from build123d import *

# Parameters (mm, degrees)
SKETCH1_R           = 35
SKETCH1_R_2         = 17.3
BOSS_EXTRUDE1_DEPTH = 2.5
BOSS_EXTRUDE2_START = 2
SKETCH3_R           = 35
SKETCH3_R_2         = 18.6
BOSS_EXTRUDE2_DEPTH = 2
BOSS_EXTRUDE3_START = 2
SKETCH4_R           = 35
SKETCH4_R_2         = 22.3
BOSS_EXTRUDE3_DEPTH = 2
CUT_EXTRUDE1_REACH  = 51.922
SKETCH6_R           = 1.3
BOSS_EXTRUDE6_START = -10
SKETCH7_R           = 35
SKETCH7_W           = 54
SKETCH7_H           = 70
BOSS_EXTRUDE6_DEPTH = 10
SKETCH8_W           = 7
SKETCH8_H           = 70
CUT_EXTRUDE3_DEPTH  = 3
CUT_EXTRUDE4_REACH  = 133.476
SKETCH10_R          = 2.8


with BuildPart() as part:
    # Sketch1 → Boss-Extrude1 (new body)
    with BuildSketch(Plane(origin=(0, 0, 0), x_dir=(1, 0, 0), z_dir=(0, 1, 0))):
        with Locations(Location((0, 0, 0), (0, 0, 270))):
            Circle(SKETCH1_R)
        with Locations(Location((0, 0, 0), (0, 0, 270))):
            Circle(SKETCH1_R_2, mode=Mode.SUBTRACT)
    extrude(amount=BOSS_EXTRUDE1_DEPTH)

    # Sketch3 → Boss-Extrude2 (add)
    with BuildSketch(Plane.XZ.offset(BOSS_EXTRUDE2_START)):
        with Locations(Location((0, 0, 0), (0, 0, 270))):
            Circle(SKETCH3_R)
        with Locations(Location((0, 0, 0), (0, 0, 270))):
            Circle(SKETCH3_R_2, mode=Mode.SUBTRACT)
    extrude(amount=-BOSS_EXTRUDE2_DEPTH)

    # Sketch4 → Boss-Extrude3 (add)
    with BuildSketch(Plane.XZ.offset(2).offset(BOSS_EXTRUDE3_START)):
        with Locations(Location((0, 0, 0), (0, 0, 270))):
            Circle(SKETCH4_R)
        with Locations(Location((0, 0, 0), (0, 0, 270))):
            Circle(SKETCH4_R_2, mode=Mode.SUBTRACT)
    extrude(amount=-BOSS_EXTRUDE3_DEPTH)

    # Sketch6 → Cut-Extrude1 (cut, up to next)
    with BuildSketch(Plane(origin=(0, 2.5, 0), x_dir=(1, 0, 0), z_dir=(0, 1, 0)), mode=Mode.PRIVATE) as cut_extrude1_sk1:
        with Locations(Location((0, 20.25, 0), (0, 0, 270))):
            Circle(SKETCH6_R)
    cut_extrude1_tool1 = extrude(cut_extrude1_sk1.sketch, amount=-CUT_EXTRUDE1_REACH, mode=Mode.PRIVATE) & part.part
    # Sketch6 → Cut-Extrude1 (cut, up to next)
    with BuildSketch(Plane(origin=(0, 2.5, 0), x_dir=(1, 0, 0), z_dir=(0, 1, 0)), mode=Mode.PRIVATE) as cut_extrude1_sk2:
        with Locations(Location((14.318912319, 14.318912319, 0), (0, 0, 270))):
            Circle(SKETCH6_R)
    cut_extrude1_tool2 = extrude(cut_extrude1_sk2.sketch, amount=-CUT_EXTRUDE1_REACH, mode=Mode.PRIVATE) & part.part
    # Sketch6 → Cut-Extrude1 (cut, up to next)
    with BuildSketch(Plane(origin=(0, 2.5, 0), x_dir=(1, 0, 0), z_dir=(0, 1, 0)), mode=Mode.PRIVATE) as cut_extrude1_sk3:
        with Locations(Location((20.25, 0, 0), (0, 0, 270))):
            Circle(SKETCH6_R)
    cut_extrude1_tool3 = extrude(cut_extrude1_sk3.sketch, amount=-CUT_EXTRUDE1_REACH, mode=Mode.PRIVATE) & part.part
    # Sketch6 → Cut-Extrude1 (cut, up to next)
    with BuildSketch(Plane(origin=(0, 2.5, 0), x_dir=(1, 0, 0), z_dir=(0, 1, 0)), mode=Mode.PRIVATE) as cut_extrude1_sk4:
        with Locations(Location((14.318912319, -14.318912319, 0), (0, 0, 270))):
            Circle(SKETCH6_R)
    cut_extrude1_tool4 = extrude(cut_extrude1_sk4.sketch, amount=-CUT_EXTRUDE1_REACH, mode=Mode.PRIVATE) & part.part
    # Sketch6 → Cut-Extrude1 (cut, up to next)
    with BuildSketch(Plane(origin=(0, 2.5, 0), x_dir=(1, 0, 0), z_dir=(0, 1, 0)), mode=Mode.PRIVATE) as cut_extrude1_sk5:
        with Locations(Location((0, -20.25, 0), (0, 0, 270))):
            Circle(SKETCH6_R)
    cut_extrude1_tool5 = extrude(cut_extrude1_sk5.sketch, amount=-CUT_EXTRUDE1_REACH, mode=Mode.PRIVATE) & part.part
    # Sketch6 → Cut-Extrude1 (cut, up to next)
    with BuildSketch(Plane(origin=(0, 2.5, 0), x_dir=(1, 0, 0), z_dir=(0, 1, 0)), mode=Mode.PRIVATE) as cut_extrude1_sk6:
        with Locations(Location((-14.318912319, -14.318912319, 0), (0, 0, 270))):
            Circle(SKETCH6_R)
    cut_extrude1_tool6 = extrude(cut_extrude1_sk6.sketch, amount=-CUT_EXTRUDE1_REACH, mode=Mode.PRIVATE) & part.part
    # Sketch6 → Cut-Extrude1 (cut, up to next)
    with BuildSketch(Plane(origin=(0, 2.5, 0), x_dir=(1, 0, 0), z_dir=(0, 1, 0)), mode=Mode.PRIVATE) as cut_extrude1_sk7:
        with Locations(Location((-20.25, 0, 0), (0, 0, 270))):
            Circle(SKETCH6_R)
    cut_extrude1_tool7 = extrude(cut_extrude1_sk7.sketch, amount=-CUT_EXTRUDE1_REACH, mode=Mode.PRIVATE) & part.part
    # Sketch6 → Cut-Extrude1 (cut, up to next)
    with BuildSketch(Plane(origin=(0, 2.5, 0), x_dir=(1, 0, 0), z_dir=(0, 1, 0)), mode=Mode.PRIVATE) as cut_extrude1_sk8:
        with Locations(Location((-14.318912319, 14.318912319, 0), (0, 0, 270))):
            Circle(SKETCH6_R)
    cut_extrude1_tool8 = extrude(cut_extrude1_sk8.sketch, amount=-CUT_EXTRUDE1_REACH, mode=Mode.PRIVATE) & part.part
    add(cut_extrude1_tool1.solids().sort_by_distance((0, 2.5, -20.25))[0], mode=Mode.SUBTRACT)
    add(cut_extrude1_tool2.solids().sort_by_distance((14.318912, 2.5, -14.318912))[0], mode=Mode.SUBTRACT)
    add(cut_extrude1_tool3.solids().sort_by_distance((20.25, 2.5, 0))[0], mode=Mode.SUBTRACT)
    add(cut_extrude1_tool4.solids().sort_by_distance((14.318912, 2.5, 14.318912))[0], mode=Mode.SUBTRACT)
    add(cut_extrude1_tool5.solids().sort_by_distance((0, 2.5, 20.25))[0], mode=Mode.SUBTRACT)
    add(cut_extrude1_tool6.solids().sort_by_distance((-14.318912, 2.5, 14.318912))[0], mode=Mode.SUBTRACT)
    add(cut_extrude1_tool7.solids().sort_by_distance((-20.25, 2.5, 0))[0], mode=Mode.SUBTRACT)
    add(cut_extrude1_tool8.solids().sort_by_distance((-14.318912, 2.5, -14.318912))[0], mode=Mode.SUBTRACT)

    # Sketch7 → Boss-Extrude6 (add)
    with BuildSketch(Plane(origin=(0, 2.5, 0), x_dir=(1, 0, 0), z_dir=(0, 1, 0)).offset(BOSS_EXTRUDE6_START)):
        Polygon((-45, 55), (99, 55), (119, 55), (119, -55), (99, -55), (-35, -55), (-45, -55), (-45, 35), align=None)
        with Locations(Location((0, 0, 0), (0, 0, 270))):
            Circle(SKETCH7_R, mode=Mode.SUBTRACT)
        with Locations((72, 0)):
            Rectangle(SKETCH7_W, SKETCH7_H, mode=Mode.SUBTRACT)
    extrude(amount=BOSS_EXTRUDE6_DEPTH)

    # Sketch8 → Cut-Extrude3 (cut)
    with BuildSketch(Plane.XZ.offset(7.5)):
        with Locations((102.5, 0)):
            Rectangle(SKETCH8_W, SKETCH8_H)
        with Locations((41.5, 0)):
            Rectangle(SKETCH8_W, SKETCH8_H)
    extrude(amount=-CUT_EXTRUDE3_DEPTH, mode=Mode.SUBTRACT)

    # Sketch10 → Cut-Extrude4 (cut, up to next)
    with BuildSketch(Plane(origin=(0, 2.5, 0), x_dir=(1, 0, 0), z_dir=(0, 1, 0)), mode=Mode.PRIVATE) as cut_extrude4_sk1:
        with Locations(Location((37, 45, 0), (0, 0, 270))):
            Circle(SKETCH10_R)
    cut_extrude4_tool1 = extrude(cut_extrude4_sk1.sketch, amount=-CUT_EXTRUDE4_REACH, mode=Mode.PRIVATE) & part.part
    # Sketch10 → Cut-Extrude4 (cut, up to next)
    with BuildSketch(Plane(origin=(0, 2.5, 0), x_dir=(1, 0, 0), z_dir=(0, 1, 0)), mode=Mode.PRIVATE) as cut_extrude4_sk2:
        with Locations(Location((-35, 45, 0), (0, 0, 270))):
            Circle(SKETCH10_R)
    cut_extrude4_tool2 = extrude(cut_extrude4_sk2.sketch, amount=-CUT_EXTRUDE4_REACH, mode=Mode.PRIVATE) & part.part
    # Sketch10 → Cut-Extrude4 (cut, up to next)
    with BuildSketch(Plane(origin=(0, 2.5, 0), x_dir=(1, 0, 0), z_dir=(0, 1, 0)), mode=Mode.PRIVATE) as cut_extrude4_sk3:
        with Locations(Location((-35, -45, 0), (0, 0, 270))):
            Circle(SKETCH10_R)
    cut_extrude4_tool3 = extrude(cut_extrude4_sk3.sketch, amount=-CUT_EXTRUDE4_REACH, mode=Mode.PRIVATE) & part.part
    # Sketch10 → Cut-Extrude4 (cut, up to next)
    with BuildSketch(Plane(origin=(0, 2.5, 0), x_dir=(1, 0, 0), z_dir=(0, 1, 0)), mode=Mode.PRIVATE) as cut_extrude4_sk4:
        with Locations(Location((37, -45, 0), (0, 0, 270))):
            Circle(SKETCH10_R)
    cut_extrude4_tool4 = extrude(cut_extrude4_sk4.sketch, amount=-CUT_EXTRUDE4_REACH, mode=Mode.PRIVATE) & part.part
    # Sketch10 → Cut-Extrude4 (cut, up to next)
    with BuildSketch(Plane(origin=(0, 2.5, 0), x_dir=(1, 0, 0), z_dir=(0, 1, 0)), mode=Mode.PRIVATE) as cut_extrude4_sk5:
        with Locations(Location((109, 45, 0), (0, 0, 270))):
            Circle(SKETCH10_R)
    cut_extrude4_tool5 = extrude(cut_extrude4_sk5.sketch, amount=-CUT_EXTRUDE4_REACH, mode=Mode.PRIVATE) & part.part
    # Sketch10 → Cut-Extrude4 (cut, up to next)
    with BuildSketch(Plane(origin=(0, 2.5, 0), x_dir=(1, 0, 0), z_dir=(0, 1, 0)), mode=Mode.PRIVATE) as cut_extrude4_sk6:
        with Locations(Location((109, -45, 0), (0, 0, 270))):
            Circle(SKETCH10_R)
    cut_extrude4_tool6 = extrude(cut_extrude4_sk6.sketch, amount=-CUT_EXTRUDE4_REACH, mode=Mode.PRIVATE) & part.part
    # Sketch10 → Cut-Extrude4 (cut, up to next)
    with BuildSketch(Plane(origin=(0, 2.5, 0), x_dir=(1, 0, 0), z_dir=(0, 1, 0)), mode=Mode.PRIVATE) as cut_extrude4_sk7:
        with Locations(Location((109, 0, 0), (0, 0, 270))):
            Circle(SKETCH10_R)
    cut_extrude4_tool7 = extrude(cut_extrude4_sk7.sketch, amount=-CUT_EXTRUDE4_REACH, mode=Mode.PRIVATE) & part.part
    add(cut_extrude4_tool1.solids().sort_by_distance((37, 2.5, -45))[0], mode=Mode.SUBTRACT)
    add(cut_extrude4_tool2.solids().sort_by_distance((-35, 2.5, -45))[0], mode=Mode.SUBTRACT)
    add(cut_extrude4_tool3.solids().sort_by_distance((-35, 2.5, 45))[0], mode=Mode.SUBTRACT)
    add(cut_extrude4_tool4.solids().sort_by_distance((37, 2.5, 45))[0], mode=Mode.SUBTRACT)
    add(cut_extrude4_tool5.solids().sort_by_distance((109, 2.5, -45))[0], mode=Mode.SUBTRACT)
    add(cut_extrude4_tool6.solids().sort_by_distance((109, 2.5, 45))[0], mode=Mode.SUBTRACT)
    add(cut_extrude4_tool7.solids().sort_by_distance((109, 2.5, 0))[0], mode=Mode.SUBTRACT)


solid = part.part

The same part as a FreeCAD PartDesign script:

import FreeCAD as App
import Part
import Sketcher


def add_polygon(sketch, points):
    """Adds a closed chain of lines whose ends are joined by coincident constraints."""
    first, n = sketch.GeometryCount, len(points)
    for a, b in zip(points, points[1:] + points[:1]):
        sketch.addGeometry(Part.LineSegment(App.Vector(*a, 0), App.Vector(*b, 0)), False)
    for i in range(n):
        sketch.addConstraint(Sketcher.Constraint("Coincident", first + i, 2, first + (i + 1) % n, 1))

doc = App.newDocument("Part")
body = doc.addObject("PartDesign::Body", "Body")

# Sketch on XZ plane
sketch1 = doc.addObject("Sketcher::SketchObject", "Sketch")
body.addObject(sketch1)
sketch1.AttachmentSupport = (doc.XZ_Plane, [""])
sketch1.MapMode = "FlatFace"
sketch1.addGeometry([
    Part.Circle(App.Vector(0, 0, 0), App.Vector(0, 0, 1), 35),
    Part.Circle(App.Vector(0, 0, 0), App.Vector(0, 0, 1), 17),
], False)
sketch1.addConstraint([
    Sketcher.Constraint("Coincident", 0, 3, -1, 1),
    Sketcher.Constraint("Coincident", 1, 3, -1, 1),
    Sketcher.Constraint("Diameter", 0, 70.0),
    Sketcher.Constraint("Diameter", 1, 34.6),
])
pad1 = doc.addObject("PartDesign::Pad", "Pad")
body.addObject(pad1)
pad1.Profile = sketch1
pad1.Length = 2.5
pad1.Reversed = True

# Sketch on XZ plane
sketch2 = doc.addObject("Sketcher::SketchObject", "Sketch001")
body.addObject(sketch2)
sketch2.AttachmentSupport = (doc.XZ_Plane, [""])
sketch2.MapMode = "FlatFace"
sketch2.AttachmentOffset = App.Placement(App.Vector(0, 0, 2), App.Rotation())
sketch2.addGeometry([
    Part.Circle(App.Vector(0, 0, 0), App.Vector(0, 0, 1), 35),
    Part.Circle(App.Vector(0, 0, 0), App.Vector(0, 0, 1), 19),
], False)
sketch2.addConstraint([
    Sketcher.Constraint("Coincident", 0, 3, -1, 1),
    Sketcher.Constraint("Coincident", 1, 3, -1, 1),
    Sketcher.Constraint("Diameter", 0, 70.0),
    Sketcher.Constraint("Diameter", 1, 37.2),
])
pad2 = doc.addObject("PartDesign::Pad", "Pad001")
body.addObject(pad2)
pad2.Profile = sketch2
pad2.Length = 2
pad2.Reversed = True

# Sketch on XZ plane
sketch3 = doc.addObject("Sketcher::SketchObject", "Sketch002")
body.addObject(sketch3)
sketch3.AttachmentSupport = (doc.XZ_Plane, [""])
sketch3.MapMode = "FlatFace"
sketch3.AttachmentOffset = App.Placement(App.Vector(0, 0, 4), App.Rotation())
sketch3.addGeometry([
    Part.Circle(App.Vector(0, 0, 0), App.Vector(0, 0, 1), 35),
    Part.Circle(App.Vector(0, 0, 0), App.Vector(0, 0, 1), 22),
], False)
sketch3.addConstraint([
    Sketcher.Constraint("Coincident", 0, 3, -1, 1),
    Sketcher.Constraint("Coincident", 1, 3, -1, 1),
    Sketcher.Constraint("Diameter", 0, 70.0),
    Sketcher.Constraint("Diameter", 1, 44.6),
])
pad3 = doc.addObject("PartDesign::Pad", "Pad002")
body.addObject(pad3)
pad3.Profile = sketch3
pad3.Length = 2
pad3.Reversed = True

# Sketch on XZ plane
sketch4 = doc.addObject("Sketcher::SketchObject", "Sketch003")
body.addObject(sketch4)
sketch4.AttachmentSupport = (doc.XZ_Plane, [""])
sketch4.MapMode = "FlatFace"
sketch4.AttachmentOffset = App.Placement(App.Vector(0, 0, -2.5), App.Rotation())
sketch4.addGeometry(Part.Circle(App.Vector(0, -20.2, 0), App.Vector(0, 0, 1), 1.3), False)
sketch4.addConstraint([
    Sketcher.Constraint("PointOnObject", 0, 3, -2),
    Sketcher.Constraint("Diameter", 0, 2.6),
    Sketcher.Constraint("DistanceY", 0, 3, -1, 1, 20.25),
])
pocket1 = doc.addObject("PartDesign::Pocket", "Pocket")
body.addObject(pocket1)
pocket1.Profile = sketch4
pocket1.Type = "UpToFirst"
pocket1.Reversed = True

# Sketch on XZ plane
sketch5 = doc.addObject("Sketcher::SketchObject", "Sketch004")
body.addObject(sketch5)
sketch5.AttachmentSupport = (doc.XZ_Plane, [""])
sketch5.MapMode = "FlatFace"
sketch5.AttachmentOffset = App.Placement(App.Vector(0, 0, -2.5), App.Rotation())
sketch5.addGeometry(Part.Circle(App.Vector(14.3, -14.3, 0), App.Vector(0, 0, 1), 1.3), False)
sketch5.addConstraint([
    Sketcher.Constraint("Diameter", 0, 2.6),
    Sketcher.Constraint("DistanceX", -1, 1, 0, 3, 14.318912),
    Sketcher.Constraint("DistanceY", 0, 3, -1, 1, 14.318912),
])
pocket2 = doc.addObject("PartDesign::Pocket", "Pocket001")
body.addObject(pocket2)
pocket2.Profile = sketch5
pocket2.Type = "UpToFirst"
pocket2.Reversed = True

# Sketch on XZ plane
sketch6 = doc.addObject("Sketcher::SketchObject", "Sketch005")
body.addObject(sketch6)
sketch6.AttachmentSupport = (doc.XZ_Plane, [""])
sketch6.MapMode = "FlatFace"
sketch6.AttachmentOffset = App.Placement(App.Vector(0, 0, -2.5), App.Rotation())
sketch6.addGeometry(Part.Circle(App.Vector(20.2, 0, 0), App.Vector(0, 0, 1), 1.3), False)
sketch6.addConstraint([
    Sketcher.Constraint("PointOnObject", 0, 3, -1),
    Sketcher.Constraint("Diameter", 0, 2.6),
    Sketcher.Constraint("DistanceX", -1, 1, 0, 3, 20.25),
])
pocket3 = doc.addObject("PartDesign::Pocket", "Pocket002")
body.addObject(pocket3)
pocket3.Profile = sketch6
pocket3.Type = "UpToFirst"
pocket3.Reversed = True

# Sketch on XZ plane
sketch7 = doc.addObject("Sketcher::SketchObject", "Sketch006")
body.addObject(sketch7)
sketch7.AttachmentSupport = (doc.XZ_Plane, [""])
sketch7.MapMode = "FlatFace"
sketch7.AttachmentOffset = App.Placement(App.Vector(0, 0, -2.5), App.Rotation())
sketch7.addGeometry(Part.Circle(App.Vector(14.3, 14.3, 0), App.Vector(0, 0, 1), 1.3), False)
sketch7.addConstraint([
    Sketcher.Constraint("Diameter", 0, 2.6),
    Sketcher.Constraint("DistanceX", -1, 1, 0, 3, 14.318912),
    Sketcher.Constraint("DistanceY", -1, 1, 0, 3, 14.318912),
])
pocket4 = doc.addObject("PartDesign::Pocket", "Pocket003")
body.addObject(pocket4)
pocket4.Profile = sketch7
pocket4.Type = "UpToFirst"
pocket4.Reversed = True

# Sketch on XZ plane
sketch8 = doc.addObject("Sketcher::SketchObject", "Sketch007")
body.addObject(sketch8)
sketch8.AttachmentSupport = (doc.XZ_Plane, [""])
sketch8.MapMode = "FlatFace"
sketch8.AttachmentOffset = App.Placement(App.Vector(0, 0, -2.5), App.Rotation())
sketch8.addGeometry(Part.Circle(App.Vector(0, 20.2, 0), App.Vector(0, 0, 1), 1.3), False)
sketch8.addConstraint([
    Sketcher.Constraint("PointOnObject", 0, 3, -2),
    Sketcher.Constraint("Diameter", 0, 2.6),
    Sketcher.Constraint("DistanceY", -1, 1, 0, 3, 20.25),
])
pocket5 = doc.addObject("PartDesign::Pocket", "Pocket004")
body.addObject(pocket5)
pocket5.Profile = sketch8
pocket5.Type = "UpToFirst"
pocket5.Reversed = True

# Sketch on XZ plane
sketch9 = doc.addObject("Sketcher::SketchObject", "Sketch008")
body.addObject(sketch9)
sketch9.AttachmentSupport = (doc.XZ_Plane, [""])
sketch9.MapMode = "FlatFace"
sketch9.AttachmentOffset = App.Placement(App.Vector(0, 0, -2.5), App.Rotation())
sketch9.addGeometry(Part.Circle(App.Vector(-14.3, 14.3, 0), App.Vector(0, 0, 1), 1.3), False)
sketch9.addConstraint([
    Sketcher.Constraint("Diameter", 0, 2.6),
    Sketcher.Constraint("DistanceX", 0, 3, -1, 1, 14.318912),
    Sketcher.Constraint("DistanceY", -1, 1, 0, 3, 14.318912),
])
pocket6 = doc.addObject("PartDesign::Pocket", "Pocket005")
body.addObject(pocket6)
pocket6.Profile = sketch9
pocket6.Type = "UpToFirst"
pocket6.Reversed = True

# Sketch on XZ plane
sketch10 = doc.addObject("Sketcher::SketchObject", "Sketch009")
body.addObject(sketch10)
sketch10.AttachmentSupport = (doc.XZ_Plane, [""])
sketch10.MapMode = "FlatFace"
sketch10.AttachmentOffset = App.Placement(App.Vector(0, 0, -2.5), App.Rotation())
sketch10.addGeometry(Part.Circle(App.Vector(-20.2, 0, 0), App.Vector(0, 0, 1), 1.3), False)
sketch10.addConstraint([
    Sketcher.Constraint("PointOnObject", 0, 3, -1),
    Sketcher.Constraint("Diameter", 0, 2.6),
    Sketcher.Constraint("DistanceX", 0, 3, -1, 1, 20.25),
])
pocket7 = doc.addObject("PartDesign::Pocket", "Pocket006")
body.addObject(pocket7)
pocket7.Profile = sketch10
pocket7.Type = "UpToFirst"
pocket7.Reversed = True

# Sketch on XZ plane
sketch11 = doc.addObject("Sketcher::SketchObject", "Sketch010")
body.addObject(sketch11)
sketch11.AttachmentSupport = (doc.XZ_Plane, [""])
sketch11.MapMode = "FlatFace"
sketch11.AttachmentOffset = App.Placement(App.Vector(0, 0, -2.5), App.Rotation())
sketch11.addGeometry(Part.Circle(App.Vector(-14.3, -14.3, 0), App.Vector(0, 0, 1), 1.3), False)
sketch11.addConstraint([
    Sketcher.Constraint("Diameter", 0, 2.6),
    Sketcher.Constraint("DistanceX", 0, 3, -1, 1, 14.318912),
    Sketcher.Constraint("DistanceY", 0, 3, -1, 1, 14.318912),
])
pocket8 = doc.addObject("PartDesign::Pocket", "Pocket007")
body.addObject(pocket8)
pocket8.Profile = sketch11
pocket8.Type = "UpToFirst"
pocket8.Reversed = True

# Sketch on XZ plane
sketch12 = doc.addObject("Sketcher::SketchObject", "Sketch011")
body.addObject(sketch12)
sketch12.AttachmentSupport = (doc.XZ_Plane, [""])
sketch12.MapMode = "FlatFace"
sketch12.AttachmentOffset = App.Placement(App.Vector(0, 0, 7.5), App.Rotation())
add_polygon(sketch12, [(119, -55), (-45, -55), (-45, 55), (119, 55)])  # lines 0-3
add_polygon(sketch12, [(45, 35), (45, -35), (99, -35), (99, 35)])  # lines 4-7
sketch12.addGeometry(Part.Circle(App.Vector(0, 0, 0), App.Vector(0, 0, 1), 35), False)  # 8
sketch12.addConstraint([
    Sketcher.Constraint("Horizontal", 0),
    Sketcher.Constraint("Vertical", 1),
    Sketcher.Constraint("Horizontal", 2),
    Sketcher.Constraint("Vertical", 3),
    Sketcher.Constraint("Vertical", 4),
    Sketcher.Constraint("Horizontal", 5),
    Sketcher.Constraint("Vertical", 6),
    Sketcher.Constraint("Horizontal", 7),
    Sketcher.Constraint("Coincident", 8, 3, -1, 1),
    Sketcher.Constraint("Diameter", 8, 70.0),
    Sketcher.Constraint("DistanceX", 0, 2, 0, 1, 164.0),
    Sketcher.Constraint("DistanceX", 5, 1, 5, 2, 54.0),
    Sketcher.Constraint("DistanceY", 1, 1, 1, 2, 110.0),
    Sketcher.Constraint("DistanceY", 4, 2, 4, 1, 70.0),
    Sketcher.Constraint("DistanceX", 0, 2, -1, 1, 45.0),
    Sketcher.Constraint("DistanceY", 0, 2, -1, 1, 55.0),
    Sketcher.Constraint("DistanceX", -1, 1, 4, 2, 45.0),
    Sketcher.Constraint("DistanceY", 4, 2, -1, 1, 35.0),
])
pad4 = doc.addObject("PartDesign::Pad", "Pad003")
body.addObject(pad4)
pad4.Profile = sketch12
pad4.Length = 10
pad4.Reversed = True

# Sketch on XZ plane
sketch13 = doc.addObject("Sketcher::SketchObject", "Sketch012")
body.addObject(sketch13)
sketch13.AttachmentSupport = (doc.XZ_Plane, [""])
sketch13.MapMode = "FlatFace"
sketch13.AttachmentOffset = App.Placement(App.Vector(0, 0, 7.5), App.Rotation())
add_polygon(sketch13, [(99, 35), (99, -35), (106, -35), (106, 35)])  # lines 0-3
add_polygon(sketch13, [(38, 35), (38, -35), (45, -35), (45, 35)])  # lines 4-7
sketch13.addConstraint([
    Sketcher.Constraint("Vertical", 0),
    Sketcher.Constraint("Horizontal", 1),
    Sketcher.Constraint("Vertical", 2),
    Sketcher.Constraint("Horizontal", 3),
    Sketcher.Constraint("Vertical", 4),
    Sketcher.Constraint("Horizontal", 5),
    Sketcher.Constraint("Vertical", 6),
    Sketcher.Constraint("Horizontal", 7),
    Sketcher.Constraint("Horizontal", 1, 2, 4, 2),
    Sketcher.Constraint("Horizontal", 3, 2, 6, 2),
    Sketcher.Constraint("Equal", 3, 5),
    Sketcher.Constraint("DistanceX", 1, 1, 1, 2, 7.0),
    Sketcher.Constraint("DistanceY", 0, 2, 0, 1, 70.0),
    Sketcher.Constraint("DistanceX", -1, 1, 0, 2, 99.0),
    Sketcher.Constraint("DistanceY", 0, 2, -1, 1, 35.0),
    Sketcher.Constraint("DistanceX", -1, 1, 4, 2, 38.0),
])
pocket9 = doc.addObject("PartDesign::Pocket", "Pocket008")
body.addObject(pocket9)
pocket9.Profile = sketch13
pocket9.Length = 3

# Sketch on XZ plane
sketch14 = doc.addObject("Sketcher::SketchObject", "Sketch013")
body.addObject(sketch14)
sketch14.AttachmentSupport = (doc.XZ_Plane, [""])
sketch14.MapMode = "FlatFace"
sketch14.AttachmentOffset = App.Placement(App.Vector(0, 0, -2.5), App.Rotation())
sketch14.addGeometry(Part.Circle(App.Vector(37, -45, 0), App.Vector(0, 0, 1), 2.8), False)
sketch14.addConstraint([
    Sketcher.Constraint("Diameter", 0, 5.6),
    Sketcher.Constraint("DistanceX", -1, 1, 0, 3, 37.0),
    Sketcher.Constraint("DistanceY", 0, 3, -1, 1, 45.0),
])
pocket10 = doc.addObject("PartDesign::Pocket", "Pocket009")
body.addObject(pocket10)
pocket10.Profile = sketch14
pocket10.Type = "UpToFirst"
pocket10.Reversed = True

# Sketch on XZ plane
sketch15 = doc.addObject("Sketcher::SketchObject", "Sketch014")
body.addObject(sketch15)
sketch15.AttachmentSupport = (doc.XZ_Plane, [""])
sketch15.MapMode = "FlatFace"
sketch15.AttachmentOffset = App.Placement(App.Vector(0, 0, -2.5), App.Rotation())
sketch15.addGeometry(Part.Circle(App.Vector(-35, -45, 0), App.Vector(0, 0, 1), 2.8), False)
sketch15.addConstraint([
    Sketcher.Constraint("Diameter", 0, 5.6),
    Sketcher.Constraint("DistanceX", 0, 3, -1, 1, 35.0),
    Sketcher.Constraint("DistanceY", 0, 3, -1, 1, 45.0),
])
pocket11 = doc.addObject("PartDesign::Pocket", "Pocket010")
body.addObject(pocket11)
pocket11.Profile = sketch15
pocket11.Type = "UpToFirst"
pocket11.Reversed = True

# Sketch on XZ plane
sketch16 = doc.addObject("Sketcher::SketchObject", "Sketch015")
body.addObject(sketch16)
sketch16.AttachmentSupport = (doc.XZ_Plane, [""])
sketch16.MapMode = "FlatFace"
sketch16.AttachmentOffset = App.Placement(App.Vector(0, 0, -2.5), App.Rotation())
sketch16.addGeometry(Part.Circle(App.Vector(-35, 45, 0), App.Vector(0, 0, 1), 2.8), False)
sketch16.addConstraint([
    Sketcher.Constraint("Diameter", 0, 5.6),
    Sketcher.Constraint("DistanceX", 0, 3, -1, 1, 35.0),
    Sketcher.Constraint("DistanceY", -1, 1, 0, 3, 45.0),
])
pocket12 = doc.addObject("PartDesign::Pocket", "Pocket011")
body.addObject(pocket12)
pocket12.Profile = sketch16
pocket12.Type = "UpToFirst"
pocket12.Reversed = True

# Sketch on XZ plane
sketch17 = doc.addObject("Sketcher::SketchObject", "Sketch016")
body.addObject(sketch17)
sketch17.AttachmentSupport = (doc.XZ_Plane, [""])
sketch17.MapMode = "FlatFace"
sketch17.AttachmentOffset = App.Placement(App.Vector(0, 0, -2.5), App.Rotation())
sketch17.addGeometry(Part.Circle(App.Vector(37, 45, 0), App.Vector(0, 0, 1), 2.8), False)
sketch17.addConstraint([
    Sketcher.Constraint("Diameter", 0, 5.6),
    Sketcher.Constraint("DistanceX", -1, 1, 0, 3, 37.0),
    Sketcher.Constraint("DistanceY", -1, 1, 0, 3, 45.0),
])
pocket13 = doc.addObject("PartDesign::Pocket", "Pocket012")
body.addObject(pocket13)
pocket13.Profile = sketch17
pocket13.Type = "UpToFirst"
pocket13.Reversed = True

# Sketch on XZ plane
sketch18 = doc.addObject("Sketcher::SketchObject", "Sketch017")
body.addObject(sketch18)
sketch18.AttachmentSupport = (doc.XZ_Plane, [""])
sketch18.MapMode = "FlatFace"
sketch18.AttachmentOffset = App.Placement(App.Vector(0, 0, -2.5), App.Rotation())
sketch18.addGeometry(Part.Circle(App.Vector(109, -45, 0), App.Vector(0, 0, 1), 2.8), False)
sketch18.addConstraint([
    Sketcher.Constraint("Diameter", 0, 5.6),
    Sketcher.Constraint("DistanceX", -1, 1, 0, 3, 109.0),
    Sketcher.Constraint("DistanceY", 0, 3, -1, 1, 45.0),
])
pocket14 = doc.addObject("PartDesign::Pocket", "Pocket013")
body.addObject(pocket14)
pocket14.Profile = sketch18
pocket14.Type = "UpToFirst"
pocket14.Reversed = True

# Sketch on XZ plane
sketch19 = doc.addObject("Sketcher::SketchObject", "Sketch018")
body.addObject(sketch19)
sketch19.AttachmentSupport = (doc.XZ_Plane, [""])
sketch19.MapMode = "FlatFace"
sketch19.AttachmentOffset = App.Placement(App.Vector(0, 0, -2.5), App.Rotation())
sketch19.addGeometry(Part.Circle(App.Vector(109, 45, 0), App.Vector(0, 0, 1), 2.8), False)
sketch19.addConstraint([
    Sketcher.Constraint("Diameter", 0, 5.6),
    Sketcher.Constraint("DistanceX", -1, 1, 0, 3, 109.0),
    Sketcher.Constraint("DistanceY", -1, 1, 0, 3, 45.0),
])
pocket15 = doc.addObject("PartDesign::Pocket", "Pocket014")
body.addObject(pocket15)
pocket15.Profile = sketch19
pocket15.Type = "UpToFirst"
pocket15.Reversed = True

# Sketch on XZ plane
sketch20 = doc.addObject("Sketcher::SketchObject", "Sketch019")
body.addObject(sketch20)
sketch20.AttachmentSupport = (doc.XZ_Plane, [""])
sketch20.MapMode = "FlatFace"
sketch20.AttachmentOffset = App.Placement(App.Vector(0, 0, -2.5), App.Rotation())
sketch20.addGeometry(Part.Circle(App.Vector(109, 0, 0), App.Vector(0, 0, 1), 2.8), False)
sketch20.addConstraint([
    Sketcher.Constraint("PointOnObject", 0, 3, -1),
    Sketcher.Constraint("Diameter", 0, 5.6),
    Sketcher.Constraint("DistanceX", -1, 1, 0, 3, 109.0),
])
pocket16 = doc.addObject("PartDesign::Pocket", "Pocket015")
body.addObject(pocket16)
pocket16.Profile = sketch20
pocket16.Type = "UpToFirst"
pocket16.Reversed = True

doc.recompute()
